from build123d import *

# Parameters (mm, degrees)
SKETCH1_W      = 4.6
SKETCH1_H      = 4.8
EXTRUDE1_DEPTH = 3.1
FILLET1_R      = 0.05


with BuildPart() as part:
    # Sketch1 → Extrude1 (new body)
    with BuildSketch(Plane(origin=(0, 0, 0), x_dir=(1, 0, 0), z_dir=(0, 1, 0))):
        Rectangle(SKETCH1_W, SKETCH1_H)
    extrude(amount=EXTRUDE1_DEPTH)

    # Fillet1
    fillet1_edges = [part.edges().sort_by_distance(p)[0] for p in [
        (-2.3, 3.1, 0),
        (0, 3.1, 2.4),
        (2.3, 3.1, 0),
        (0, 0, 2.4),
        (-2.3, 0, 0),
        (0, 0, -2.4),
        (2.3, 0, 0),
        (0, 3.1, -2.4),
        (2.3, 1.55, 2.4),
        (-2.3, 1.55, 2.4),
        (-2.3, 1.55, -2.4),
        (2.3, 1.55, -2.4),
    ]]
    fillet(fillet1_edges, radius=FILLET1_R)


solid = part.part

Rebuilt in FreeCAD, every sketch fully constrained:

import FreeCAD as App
import Part
import Sketcher
Q = App.Units.Quantity


def add_polygon(sketch, points):
    """Adds a closed chain of lines whose ends are joined by coincident constraints."""
    first, n = sketch.GeometryCount, len(points)
    for a, b in zip(points, points[1:] + points[:1]):
        sketch.addGeometry(Part.LineSegment(App.Vector(*a, 0), App.Vector(*b, 0)), False)
    for i in range(n):
        sketch.addConstraint(Sketcher.Constraint("Coincident", first + i, 2, first + (i + 1) % n, 1))

doc = App.newDocument("Part")
params = doc.addObject("Spreadsheet::Sheet", "Params")
for row, (alias, value) in enumerate([
    ("sketch1_width", "4.6 mm"),
    ("sketch1_height", "4.8 mm"),
    ("pad1_length", "3.1 mm"),
    ("fillet_radius", "0.05 mm"),
], start=1):
    params.set(f"A{row}", alias)
    params.set(f"B{row}", "=" + value)
    params.setAlias(f"B{row}", alias)

body = doc.addObject("PartDesign::Body", "Body")

# Sketch on XZ plane
sketch1 = body.newObject("Sketcher::SketchObject", "Sketch")
sketch1.AttachmentSupport = (doc.getObject("XZ_Plane"), [""])
sketch1.MapMode = "FlatFace"
add_polygon(sketch1, [(-2.3, -2.4), (-2.3, 2.4), (2.3, 2.4), (2.3, -2.4)])  # lines 0-3
sketch1.addConstraint(Sketcher.Constraint("Vertical", 0))
sketch1.addConstraint(Sketcher.Constraint("Horizontal", 1))
sketch1.addConstraint(Sketcher.Constraint("Vertical", 2))
sketch1.addConstraint(Sketcher.Constraint("Horizontal", 3))
sketch1.addConstraint(Sketcher.Constraint("Symmetric", 0, 2, 2, 2, -1, 1))
sketch1.addConstraint(Sketcher.Constraint("DistanceX", 1, 1, 1, 2, Q("4.6 mm")))
sketch1.addConstraint(Sketcher.Constraint("DistanceY", 0, 1, 0, 2, Q("4.8 mm")))
sketch1.setExpression("Constraints[9]", "Params.sketch1_width")
sketch1.setExpression("Constraints[10]", "Params.sketch1_height")
pad1 = body.newObject("PartDesign::Pad", "Pad")
pad1.Profile = sketch1
pad1.setExpression("Length", "Params.pad1_length")
pad1.Reversed = True
doc.recompute()

fillet = body.newObject("PartDesign::Fillet", "Fillet")
fillet.Base = (pad1, ["Edge1"])
fillet.UseAllEdges = True
fillet.setExpression("Radius", "Params.fillet_radius")

doc.recompute()
